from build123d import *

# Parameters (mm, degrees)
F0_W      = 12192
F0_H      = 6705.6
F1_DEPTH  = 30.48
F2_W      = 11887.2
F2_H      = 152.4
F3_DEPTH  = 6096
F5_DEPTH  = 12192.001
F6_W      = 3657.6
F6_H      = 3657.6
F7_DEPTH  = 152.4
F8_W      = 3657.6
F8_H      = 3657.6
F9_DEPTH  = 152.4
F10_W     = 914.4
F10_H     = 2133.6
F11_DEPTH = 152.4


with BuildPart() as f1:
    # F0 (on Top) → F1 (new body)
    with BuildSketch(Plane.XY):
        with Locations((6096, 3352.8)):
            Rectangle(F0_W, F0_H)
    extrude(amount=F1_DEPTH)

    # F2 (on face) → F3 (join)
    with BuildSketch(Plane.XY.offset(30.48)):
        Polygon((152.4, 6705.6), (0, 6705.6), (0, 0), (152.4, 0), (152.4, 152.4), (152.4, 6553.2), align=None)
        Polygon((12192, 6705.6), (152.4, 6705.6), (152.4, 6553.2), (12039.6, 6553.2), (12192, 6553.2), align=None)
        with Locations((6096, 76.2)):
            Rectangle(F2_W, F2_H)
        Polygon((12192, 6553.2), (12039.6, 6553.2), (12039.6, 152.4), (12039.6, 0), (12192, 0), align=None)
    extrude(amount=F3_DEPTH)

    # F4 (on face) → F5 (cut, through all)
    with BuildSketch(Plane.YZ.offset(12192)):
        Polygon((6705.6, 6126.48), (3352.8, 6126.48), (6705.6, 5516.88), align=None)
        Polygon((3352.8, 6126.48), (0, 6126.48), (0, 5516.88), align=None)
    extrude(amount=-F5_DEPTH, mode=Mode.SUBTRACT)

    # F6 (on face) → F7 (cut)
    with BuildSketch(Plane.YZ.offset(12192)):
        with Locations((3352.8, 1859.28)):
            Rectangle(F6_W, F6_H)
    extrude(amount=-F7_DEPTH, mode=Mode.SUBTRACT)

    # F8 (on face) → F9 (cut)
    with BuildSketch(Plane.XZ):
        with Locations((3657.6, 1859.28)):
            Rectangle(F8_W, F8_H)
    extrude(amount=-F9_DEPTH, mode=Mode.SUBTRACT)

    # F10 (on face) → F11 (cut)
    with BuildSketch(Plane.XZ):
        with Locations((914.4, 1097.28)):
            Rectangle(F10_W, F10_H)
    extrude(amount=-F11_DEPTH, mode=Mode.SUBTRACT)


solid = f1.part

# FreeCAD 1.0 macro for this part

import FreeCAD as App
import Part
import Sketcher
Q = App.Units.Quantity


def add_polygon(sketch, points):
    """Adds a closed chain of lines whose ends are joined by coincident constraints."""
    first, n = sketch.GeometryCount, len(points)
    for a, b in zip(points, points[1:] + points[:1]):
        sketch.addGeometry(Part.LineSegment(App.Vector(*a, 0), App.Vector(*b, 0)), False)
    for i in range(n):
        sketch.addConstraint(Sketcher.Constraint("Coincident", first + i, 2, first + (i + 1) % n, 1))

doc = App.newDocument("Part")
body = doc.addObject("PartDesign::Body", "Body")

sketch1 = body.newObject("Sketcher::SketchObject", "Sketch")
sketch1.AttachmentSupport = (doc.getObject("XY_Plane"), [""])
sketch1.MapMode = "FlatFace"
add_polygon(sketch1, [(0, 6705.6), (0, 0), (12192, 0), (12192, 6705.6)])
sketch1.addConstraint([
    Sketcher.Constraint("Vertical", 0),
    Sketcher.Constraint("Horizontal", 1),
    Sketcher.Constraint("Vertical", 2),
    Sketcher.Constraint("Horizontal", 3),
    Sketcher.Constraint("Coincident", 0, 2, -1, 1),
    Sketcher.Constraint("DistanceX", 1, 1, 1, 2, Q("480 in")),
    Sketcher.Constraint("DistanceY", 0, 2, 0, 1, Q("264 in")),
])
pad1 = body.newObject("PartDesign::Pad", "Pad")
pad1.Profile = sketch1
pad1.Length = Q("1.2 in")

sketch2 = body.newObject("Sketcher::SketchObject", "Sketch001")
sketch2.AttachmentSupport = (doc.getObject("XY_Plane"), [""])
sketch2.MapMode = "FlatFace"
sketch2.AttachmentOffset = App.Placement(App.Vector(0, 0, 1.2 * 25.4), App.Rotation())
add_polygon(sketch2, [(0, 6705.6), (0, 0), (12192, 0), (12192, 6705.6)])
add_polygon(sketch2, [(12039.6, 152.4), (152.4, 152.4), (152.4, 6553.2), (12039.6, 6553.2)])
sketch2.addConstraint([
    Sketcher.Constraint("Vertical", 0),
    Sketcher.Constraint("Horizontal", 1),
    Sketcher.Constraint("Vertical", 2),
    Sketcher.Constraint("Horizontal", 3),
    Sketcher.Constraint("Horizontal", 4),
    Sketcher.Constraint("Vertical", 5),
    Sketcher.Constraint("Horizontal", 6),
    Sketcher.Constraint("Vertical", 7),
    Sketcher.Constraint("Coincident", 0, 2, -1, 1),
    Sketcher.Constraint("DistanceX", 1, 1, 1, 2, Q("480 in")),
    Sketcher.Constraint("DistanceX", 4, 2, 4, 1, Q("468 in")),
    Sketcher.Constraint("DistanceY", 0, 2, 0, 1, Q("264 in")),
    Sketcher.Constraint("DistanceY", 5, 1, 5, 2, Q("252 in")),
    Sketcher.Constraint("DistanceX", -1, 1, 4, 2, Q("6 in")),
    Sketcher.Constraint("DistanceY", -1, 1, 4, 2, Q("6 in")),
])
pad2 = body.newObject("PartDesign::Pad", "Pad001")
pad2.Profile = sketch2
pad2.Length = Q("240 in")

sketch3 = body.newObject("Sketcher::SketchObject", "Sketch002")
sketch3.AttachmentSupport = (doc.getObject("YZ_Plane"), [""])
sketch3.MapMode = "FlatFace"
sketch3.AttachmentOffset = App.Placement(App.Vector(0, 0, 480 * 25.4), App.Rotation())
add_polygon(sketch3, [(6705.6, 6126.48), (3352.8, 6126.48), (6705.6, 5516.88)])
add_polygon(sketch3, [(3352.8, 6126.48), (0, 6126.48), (0, 5516.88)])
sketch3.addConstraint([
    Sketcher.Constraint("Horizontal", 0),
    Sketcher.Constraint("Vertical", 2),
    Sketcher.Constraint("Horizontal", 3),
    Sketcher.Constraint("Vertical", 4),
    Sketcher.Constraint("Coincident", 5, 2, 0, 2),
    Sketcher.Constraint("PointOnObject", 3, 2, -2),
    Sketcher.Constraint("Horizontal", 1, 2, 4, 2),
    Sketcher.Constraint("Equal", 0, 3),
    Sketcher.Constraint("DistanceX", 0, 2, 0, 1, Q("132 in")),
    Sketcher.Constraint("DistanceY", 2, 1, 2, 2, Q("24 in")),
    Sketcher.Constraint("DistanceY", -1, 1, 0, 2, Q("241.2 in")),
])
pocket1 = body.newObject("PartDesign::Pocket", "Pocket")
pocket1.Profile = sketch3
pocket1.Type = "ThroughAll"

sketch4 = body.newObject("Sketcher::SketchObject", "Sketch003")
sketch4.AttachmentSupport = (doc.getObject("YZ_Plane"), [""])
sketch4.MapMode = "FlatFace"
sketch4.AttachmentOffset = App.Placement(App.Vector(0, 0, 480 * 25.4), App.Rotation())
add_polygon(sketch4, [(1524, 3688.08), (1524, 30.48), (5181.6, 30.48), (5181.6, 3688.08)])
sketch4.addConstraint([
    Sketcher.Constraint("Vertical", 0),
    Sketcher.Constraint("Horizontal", 1),
    Sketcher.Constraint("Vertical", 2),
    Sketcher.Constraint("Horizontal", 3),
    Sketcher.Constraint("Equal", 3, 0),
    Sketcher.Constraint("DistanceX", 1, 1, 1, 2, Q("144 in")),
    Sketcher.Constraint("DistanceX", -1, 1, 0, 2, Q("60 in")),
    Sketcher.Constraint("DistanceY", -1, 1, 0, 2, Q("1.2 in")),
])
pocket2 = body.newObject("PartDesign::Pocket", "Pocket001")
pocket2.Profile = sketch4
pocket2.Length = Q("6 in")

sketch5 = body.newObject("Sketcher::SketchObject", "Sketch004")
sketch5.AttachmentSupport = (doc.getObject("XZ_Plane"), [""])
sketch5.MapMode = "FlatFace"
add_polygon(sketch5, [(1828.8, 3688.08), (1828.8, 30.48), (5486.4, 30.48), (5486.4, 3688.08)])
sketch5.addConstraint([
    Sketcher.Constraint("Vertical", 0),
    Sketcher.Constraint("Horizontal", 1),
    Sketcher.Constraint("Vertical", 2),
    Sketcher.Constraint("Horizontal", 3),
    Sketcher.Constraint("Equal", 3, 0),
    Sketcher.Constraint("DistanceX", 1, 1, 1, 2, Q("144 in")),
    Sketcher.Constraint("DistanceX", -1, 1, 0, 2, Q("72 in")),
    Sketcher.Constraint("DistanceY", -1, 1, 0, 2, Q("1.2 in")),
])
pocket3 = body.newObject("PartDesign::Pocket", "Pocket002")
pocket3.Profile = sketch5
pocket3.Length = Q("6 in")

sketch6 = body.newObject("Sketcher::SketchObject", "Sketch005")
sketch6.AttachmentSupport = (doc.getObject("XZ_Plane"), [""])
sketch6.MapMode = "FlatFace"
add_polygon(sketch6, [(457.2, 2164.08), (457.2, 30.48), (1371.6, 30.48), (1371.6, 2164.08)])
sketch6.addConstraint([
    Sketcher.Constraint("Vertical", 0),
    Sketcher.Constraint("Horizontal", 1),
    Sketcher.Constraint("Vertical", 2),
    Sketcher.Constraint("Horizontal", 3),
    Sketcher.Constraint("DistanceX", 1, 1, 1, 2, Q("36 in")),
    Sketcher.Constraint("DistanceY", 0, 2, 0, 1, Q("84 in")),
    Sketcher.Constraint("DistanceX", -1, 1, 0, 2, Q("18 in")),
    Sketcher.Constraint("DistanceY", -1, 1, 0, 2, Q("1.2 in")),
])
pocket4 = body.newObject("PartDesign::Pocket", "Pocket003")
pocket4.Profile = sketch6
pocket4.Length = Q("6 in")

doc.recompute()
